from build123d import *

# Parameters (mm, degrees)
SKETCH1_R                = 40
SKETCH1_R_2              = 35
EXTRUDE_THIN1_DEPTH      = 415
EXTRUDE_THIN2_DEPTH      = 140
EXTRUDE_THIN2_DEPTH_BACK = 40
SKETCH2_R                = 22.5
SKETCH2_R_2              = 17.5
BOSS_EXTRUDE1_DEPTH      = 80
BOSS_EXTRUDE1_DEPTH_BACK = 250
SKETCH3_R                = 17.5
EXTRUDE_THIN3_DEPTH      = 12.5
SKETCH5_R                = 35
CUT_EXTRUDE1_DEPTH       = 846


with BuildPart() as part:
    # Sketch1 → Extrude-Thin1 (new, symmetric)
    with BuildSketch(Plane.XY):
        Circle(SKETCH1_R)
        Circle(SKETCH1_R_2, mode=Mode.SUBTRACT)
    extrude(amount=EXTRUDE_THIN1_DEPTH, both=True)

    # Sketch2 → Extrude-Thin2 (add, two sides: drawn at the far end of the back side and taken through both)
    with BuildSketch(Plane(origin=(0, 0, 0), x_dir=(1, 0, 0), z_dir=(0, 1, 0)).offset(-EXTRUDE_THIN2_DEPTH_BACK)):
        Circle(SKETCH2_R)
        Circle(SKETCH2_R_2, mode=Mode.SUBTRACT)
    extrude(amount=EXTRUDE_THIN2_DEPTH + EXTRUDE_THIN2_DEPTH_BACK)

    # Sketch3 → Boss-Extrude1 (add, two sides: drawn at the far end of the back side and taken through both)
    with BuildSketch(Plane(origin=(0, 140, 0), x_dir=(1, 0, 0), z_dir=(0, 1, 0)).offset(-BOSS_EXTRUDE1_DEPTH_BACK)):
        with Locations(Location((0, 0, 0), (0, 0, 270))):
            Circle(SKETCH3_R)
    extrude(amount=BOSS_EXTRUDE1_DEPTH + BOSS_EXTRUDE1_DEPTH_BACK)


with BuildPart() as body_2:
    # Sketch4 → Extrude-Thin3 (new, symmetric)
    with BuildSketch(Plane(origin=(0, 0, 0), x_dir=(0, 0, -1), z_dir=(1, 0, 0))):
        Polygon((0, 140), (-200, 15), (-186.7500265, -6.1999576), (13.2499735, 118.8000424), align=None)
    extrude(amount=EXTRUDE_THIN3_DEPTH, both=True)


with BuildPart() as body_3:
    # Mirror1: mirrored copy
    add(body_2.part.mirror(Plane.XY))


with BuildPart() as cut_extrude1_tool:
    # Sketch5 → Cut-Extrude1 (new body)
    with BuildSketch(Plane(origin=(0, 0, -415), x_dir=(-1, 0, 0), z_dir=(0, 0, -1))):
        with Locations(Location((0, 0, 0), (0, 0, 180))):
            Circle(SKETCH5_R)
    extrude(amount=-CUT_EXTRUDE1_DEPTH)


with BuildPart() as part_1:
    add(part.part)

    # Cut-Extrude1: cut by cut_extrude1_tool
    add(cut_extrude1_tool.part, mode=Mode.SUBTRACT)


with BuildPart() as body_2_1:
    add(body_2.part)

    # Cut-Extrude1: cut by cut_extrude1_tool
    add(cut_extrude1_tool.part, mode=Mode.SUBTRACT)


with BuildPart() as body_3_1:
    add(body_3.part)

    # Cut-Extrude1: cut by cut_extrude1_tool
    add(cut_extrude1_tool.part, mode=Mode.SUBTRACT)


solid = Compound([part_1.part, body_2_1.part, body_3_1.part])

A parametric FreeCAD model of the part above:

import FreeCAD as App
import Part
import Sketcher
from FreeCAD import Vector

doc = App.newDocument("Part")
body = doc.addObject("PartDesign::Body", "Body")

sketch1 = body.newObject("Sketcher::SketchObject", "Sketch")
sketch1.AttachmentSupport = (doc.getObject("XY_Plane"), [""])
sketch1.MapMode = "FlatFace"
sketch1.addGeometry([
    Part.Circle(Vector(0, 0, 0), Vector(0, 0, 1), 40),
    Part.Circle(Vector(0, 0, 0), Vector(0, 0, 1), 35),
], False)
sketch1.addConstraint([
    Sketcher.Constraint("Coincident", 0, 3, -1, 1),
    Sketcher.Constraint("Coincident", 1, 3, -1, 1),
    Sketcher.Constraint("Diameter", 0, 80.0),
    Sketcher.Constraint("Diameter", 1, 70.0),
])
pad1 = body.newObject("PartDesign::Pad", "Pad")
pad1.Profile = sketch1
pad1.Length = 830
pad1.Midplane = True

sketch2 = body.newObject("Sketcher::SketchObject", "Sketch001")
sketch2.AttachmentSupport = (doc.getObject("XZ_Plane"), [""])
sketch2.MapMode = "FlatFace"
sketch2.addGeometry([
    Part.Circle(Vector(0, 0, 0), Vector(0, 0, 1), 22.5),
    Part.Circle(Vector(0, 0, 0), Vector(0, 0, 1), 17.5),
], False)
sketch2.addConstraint([
    Sketcher.Constraint("Coincident", 0, 3, -1, 1),
    Sketcher.Constraint("Coincident", 1, 3, -1, 1),
    Sketcher.Constraint("Diameter", 0, 45.0),
    Sketcher.Constraint("Diameter", 1, 35.0),
])
pad2 = body.newObject("PartDesign::Pad", "Pad001")
pad2.Profile = sketch2
pad2.Type = "TwoLengths"
pad2.Length = 140
pad2.Length2 = 40
pad2.Reversed = True

sketch3 = body.newObject("Sketcher::SketchObject", "Sketch002")
sketch3.AttachmentSupport = (doc.getObject("XZ_Plane"), [""])
sketch3.MapMode = "FlatFace"
sketch3.AttachmentOffset = App.Placement(Vector(0, 0, -140), App.Rotation())
sketch3.addGeometry(Part.Circle(Vector(0, 0, 0), Vector(0, 0, 1), 17.5), False)
sketch3.addConstraint([
    Sketcher.Constraint("Coincident", 0, 3, -1, 1),
    Sketcher.Constraint("Diameter", 0, 35.0),
])
pad3 = body.newObject("PartDesign::Pad", "Pad002")
pad3.Profile = sketch3
pad3.Type = "TwoLengths"
pad3.Length = 80
pad3.Length2 = 250
pad3.Reversed = True
body2 = doc.addObject("PartDesign::Body", "Body001")

sketch4 = body2.newObject("Sketcher::SketchObject", "Sketch003")
sketch4.AttachmentSupport = (doc.getObject("YZ_Plane001"), [""])
sketch4.MapMode = "FlatFace"
sketch4.addGeometry([
    Part.LineSegment(Vector(140, 0, 0), Vector(15, 200, 0)),
    Part.LineSegment(Vector(15, 200, 0), Vector(-6.199958, 186.750026, 0)),
    Part.LineSegment(Vector(-6.199958, 186.750026, 0), Vector(118.800042, -13.249973, 0)),
    Part.LineSegment(Vector(118.800042, -13.249973, 0), Vector(140, 0, 0)),
], False)
sketch4.addConstraint([
    Sketcher.Constraint("Coincident", 0, 2, 1, 1),
    Sketcher.Constraint("Coincident", 1, 2, 2, 1),
    Sketcher.Constraint("Coincident", 2, 2, 3, 1),
    Sketcher.Constraint("Coincident", 3, 2, 0, 1),
    Sketcher.Constraint("PointOnObject", 3, 2, -1),
    Sketcher.Constraint("Perpendicular", 0, 1),
    Sketcher.Constraint("Perpendicular", 1, 2),
    Sketcher.Constraint("Perpendicular", 2, 3),
    Sketcher.Constraint("Distance", 1, 25.0),
    Sketcher.Constraint("DistanceX", -1, 1, 0, 2, 15.0),
    Sketcher.Constraint("DistanceY", -1, 1, 0, 2, 200.0),
    Sketcher.Constraint("DistanceX", -1, 1, 3, 2, 140.0),
])
pad4 = body2.newObject("PartDesign::Pad", "Pad003")
pad4.Profile = sketch4
pad4.Length = 25
pad4.Midplane = True
body3 = doc.addObject("PartDesign::Body", "Body002")
doc.recompute()

mirroring = doc.addObject("Part::Mirroring", "Mirroring")
mirroring.Source = body2
mirroring.Base = Vector(0, 0, 0)
mirroring.Normal = Vector(0, 0, 1)
body3.BaseFeature = mirroring
doc.recompute()
body4 = doc.addObject("PartDesign::Body", "Body003")

sketch5 = body4.newObject("Sketcher::SketchObject", "Sketch004")
sketch5.AttachmentSupport = (doc.getObject("XY_Plane003"), [""])
sketch5.MapMode = "FlatFace"
sketch5.AttachmentOffset = App.Placement(Vector(0, 0, -415), App.Rotation())
sketch5.addGeometry(Part.Circle(Vector(0, 0, 0), Vector(0, 0, 1), 35), False)
sketch5.addConstraint([
    Sketcher.Constraint("Coincident", 0, 3, -1, 1),
    Sketcher.Constraint("Diameter", 0, 70.0),
])
pad5 = body4.newObject("PartDesign::Pad", "Pad004")
pad5.Profile = sketch5
pad5.Length = 846
doc.recompute()

body5 = doc.addObject("PartDesign::Body", "Body004")
body5.BaseFeature = body4
boolean = body.newObject("PartDesign::Boolean", "Boolean")
boolean.Type = "Cut"
boolean.addObjects([body5])
doc.recompute()

body6 = doc.addObject("PartDesign::Body", "Body005")
body6.BaseFeature = body4
boolean2 = body2.newObject("PartDesign::Boolean", "Boolean001")
boolean2.Type = "Cut"
boolean2.addObjects([body6])
doc.recompute()

boolean3 = body3.newObject("PartDesign::Boolean", "Boolean002")
boolean3.Type = "Cut"
boolean3.addObjects([body4])
mirroring.Visibility = False

doc.recompute()
